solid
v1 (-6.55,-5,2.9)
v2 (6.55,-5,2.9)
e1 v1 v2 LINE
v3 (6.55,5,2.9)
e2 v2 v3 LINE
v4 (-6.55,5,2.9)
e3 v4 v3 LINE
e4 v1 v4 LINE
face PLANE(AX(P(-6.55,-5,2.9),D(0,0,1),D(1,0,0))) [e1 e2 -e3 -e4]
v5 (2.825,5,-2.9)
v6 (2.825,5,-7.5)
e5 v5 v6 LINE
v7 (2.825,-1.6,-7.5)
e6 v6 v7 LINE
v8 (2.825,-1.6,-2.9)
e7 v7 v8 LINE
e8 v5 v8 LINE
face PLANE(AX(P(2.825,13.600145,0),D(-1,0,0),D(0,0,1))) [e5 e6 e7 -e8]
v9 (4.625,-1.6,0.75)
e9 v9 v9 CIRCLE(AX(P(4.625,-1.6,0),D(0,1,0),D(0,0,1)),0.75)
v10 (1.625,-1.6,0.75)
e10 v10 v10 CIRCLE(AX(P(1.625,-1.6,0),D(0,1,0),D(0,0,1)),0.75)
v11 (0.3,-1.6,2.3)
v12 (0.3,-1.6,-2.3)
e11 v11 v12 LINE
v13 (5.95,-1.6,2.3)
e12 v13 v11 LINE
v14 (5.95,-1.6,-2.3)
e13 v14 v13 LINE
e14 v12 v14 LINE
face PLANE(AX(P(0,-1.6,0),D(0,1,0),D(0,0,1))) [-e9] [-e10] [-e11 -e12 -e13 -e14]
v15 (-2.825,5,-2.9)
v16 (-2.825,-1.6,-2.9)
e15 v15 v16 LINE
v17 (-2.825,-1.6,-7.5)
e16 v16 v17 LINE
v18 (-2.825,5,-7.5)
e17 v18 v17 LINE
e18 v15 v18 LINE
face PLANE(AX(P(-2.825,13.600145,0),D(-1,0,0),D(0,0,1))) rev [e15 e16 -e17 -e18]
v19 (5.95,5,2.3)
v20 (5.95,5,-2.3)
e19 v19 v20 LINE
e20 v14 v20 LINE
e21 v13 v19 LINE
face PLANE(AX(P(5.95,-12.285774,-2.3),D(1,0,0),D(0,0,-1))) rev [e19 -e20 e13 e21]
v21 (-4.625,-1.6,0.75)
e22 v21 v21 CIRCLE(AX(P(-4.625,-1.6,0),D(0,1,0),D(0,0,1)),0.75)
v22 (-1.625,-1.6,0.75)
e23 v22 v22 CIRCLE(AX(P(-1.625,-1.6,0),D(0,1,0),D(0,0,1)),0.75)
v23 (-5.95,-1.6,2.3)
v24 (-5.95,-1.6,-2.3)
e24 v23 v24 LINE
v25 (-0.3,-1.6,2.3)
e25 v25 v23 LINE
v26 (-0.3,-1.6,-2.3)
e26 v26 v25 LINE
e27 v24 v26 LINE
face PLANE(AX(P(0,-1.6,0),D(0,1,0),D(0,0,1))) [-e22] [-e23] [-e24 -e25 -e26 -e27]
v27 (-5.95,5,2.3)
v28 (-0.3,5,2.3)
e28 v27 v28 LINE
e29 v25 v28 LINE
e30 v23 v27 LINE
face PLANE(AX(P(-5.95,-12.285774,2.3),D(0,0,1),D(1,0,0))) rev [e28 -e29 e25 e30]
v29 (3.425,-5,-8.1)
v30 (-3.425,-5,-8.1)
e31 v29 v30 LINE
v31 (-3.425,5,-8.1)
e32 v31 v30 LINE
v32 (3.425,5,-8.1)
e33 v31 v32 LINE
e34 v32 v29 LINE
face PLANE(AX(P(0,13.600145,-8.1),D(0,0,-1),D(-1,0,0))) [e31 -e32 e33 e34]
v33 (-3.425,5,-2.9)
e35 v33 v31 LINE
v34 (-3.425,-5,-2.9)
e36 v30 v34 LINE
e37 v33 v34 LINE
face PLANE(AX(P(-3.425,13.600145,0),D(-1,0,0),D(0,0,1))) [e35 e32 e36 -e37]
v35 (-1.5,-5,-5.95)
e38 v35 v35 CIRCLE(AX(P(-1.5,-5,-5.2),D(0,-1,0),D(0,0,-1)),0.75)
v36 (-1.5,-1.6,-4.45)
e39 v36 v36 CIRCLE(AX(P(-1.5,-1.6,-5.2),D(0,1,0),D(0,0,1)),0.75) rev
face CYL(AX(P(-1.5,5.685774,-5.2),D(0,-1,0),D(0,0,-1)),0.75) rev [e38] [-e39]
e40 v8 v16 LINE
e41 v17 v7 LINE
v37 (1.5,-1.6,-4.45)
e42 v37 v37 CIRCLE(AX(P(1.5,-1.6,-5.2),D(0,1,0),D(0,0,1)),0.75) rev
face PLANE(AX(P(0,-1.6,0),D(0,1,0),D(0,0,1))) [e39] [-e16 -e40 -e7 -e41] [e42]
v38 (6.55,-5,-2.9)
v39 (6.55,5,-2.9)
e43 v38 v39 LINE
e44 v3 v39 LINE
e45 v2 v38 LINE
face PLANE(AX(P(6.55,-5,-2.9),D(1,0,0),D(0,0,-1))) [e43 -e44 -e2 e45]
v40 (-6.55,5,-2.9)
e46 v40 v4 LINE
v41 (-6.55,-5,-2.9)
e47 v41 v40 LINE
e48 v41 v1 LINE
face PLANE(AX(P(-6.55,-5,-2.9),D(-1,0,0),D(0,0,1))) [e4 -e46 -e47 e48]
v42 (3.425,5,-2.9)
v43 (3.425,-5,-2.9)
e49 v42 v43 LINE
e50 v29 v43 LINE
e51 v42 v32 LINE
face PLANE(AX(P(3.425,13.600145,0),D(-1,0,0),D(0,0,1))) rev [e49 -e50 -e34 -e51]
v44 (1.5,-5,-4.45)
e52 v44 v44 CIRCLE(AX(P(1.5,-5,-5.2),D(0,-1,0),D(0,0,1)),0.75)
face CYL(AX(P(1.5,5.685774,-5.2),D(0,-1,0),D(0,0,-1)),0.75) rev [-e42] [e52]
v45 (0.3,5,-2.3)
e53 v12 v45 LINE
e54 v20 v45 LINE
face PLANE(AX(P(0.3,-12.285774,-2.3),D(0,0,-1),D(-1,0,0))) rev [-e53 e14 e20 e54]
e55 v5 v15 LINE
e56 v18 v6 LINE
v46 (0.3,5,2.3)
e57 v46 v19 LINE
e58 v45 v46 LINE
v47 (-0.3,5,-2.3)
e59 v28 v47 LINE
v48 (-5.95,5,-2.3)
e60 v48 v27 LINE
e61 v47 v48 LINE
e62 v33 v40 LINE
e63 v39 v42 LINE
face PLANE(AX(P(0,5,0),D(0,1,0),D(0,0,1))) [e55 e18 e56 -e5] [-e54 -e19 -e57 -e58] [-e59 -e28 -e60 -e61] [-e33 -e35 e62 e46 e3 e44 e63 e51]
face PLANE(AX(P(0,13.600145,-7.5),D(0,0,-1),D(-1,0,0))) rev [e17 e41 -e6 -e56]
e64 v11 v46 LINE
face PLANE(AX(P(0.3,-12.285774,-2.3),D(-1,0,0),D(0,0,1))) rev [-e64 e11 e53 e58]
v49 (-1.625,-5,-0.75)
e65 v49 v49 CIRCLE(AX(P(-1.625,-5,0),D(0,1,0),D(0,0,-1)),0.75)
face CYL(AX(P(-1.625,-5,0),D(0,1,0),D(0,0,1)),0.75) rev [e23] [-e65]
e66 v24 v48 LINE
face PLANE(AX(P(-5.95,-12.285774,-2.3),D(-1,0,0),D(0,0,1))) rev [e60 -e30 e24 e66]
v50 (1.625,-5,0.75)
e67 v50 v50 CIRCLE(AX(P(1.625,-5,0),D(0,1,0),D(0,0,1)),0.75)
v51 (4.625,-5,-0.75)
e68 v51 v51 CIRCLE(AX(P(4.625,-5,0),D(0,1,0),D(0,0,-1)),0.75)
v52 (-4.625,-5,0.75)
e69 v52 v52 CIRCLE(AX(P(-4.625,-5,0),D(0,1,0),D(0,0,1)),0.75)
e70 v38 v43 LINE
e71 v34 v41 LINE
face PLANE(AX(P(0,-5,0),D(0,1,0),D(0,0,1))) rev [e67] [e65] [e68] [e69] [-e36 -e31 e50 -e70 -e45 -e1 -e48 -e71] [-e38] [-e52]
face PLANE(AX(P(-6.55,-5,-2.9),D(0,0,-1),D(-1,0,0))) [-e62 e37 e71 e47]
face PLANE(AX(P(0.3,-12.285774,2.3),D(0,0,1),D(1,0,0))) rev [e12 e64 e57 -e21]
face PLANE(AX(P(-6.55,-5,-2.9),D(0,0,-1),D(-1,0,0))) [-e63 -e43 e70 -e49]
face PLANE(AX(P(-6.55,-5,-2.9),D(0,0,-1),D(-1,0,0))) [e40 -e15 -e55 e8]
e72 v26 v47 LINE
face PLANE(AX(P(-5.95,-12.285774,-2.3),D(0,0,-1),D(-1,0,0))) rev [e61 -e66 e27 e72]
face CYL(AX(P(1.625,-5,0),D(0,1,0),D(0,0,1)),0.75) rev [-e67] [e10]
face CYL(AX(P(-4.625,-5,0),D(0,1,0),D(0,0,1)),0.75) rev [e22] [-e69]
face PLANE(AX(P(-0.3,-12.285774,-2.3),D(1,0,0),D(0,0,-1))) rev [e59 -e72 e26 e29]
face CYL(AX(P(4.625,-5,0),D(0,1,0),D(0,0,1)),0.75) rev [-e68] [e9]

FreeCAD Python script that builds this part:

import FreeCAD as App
import Part
import Sketcher

V = App.Vector

doc = App.newDocument("Part")
body = doc.addObject("PartDesign::Body", "Body")

sketch1 = doc.addObject("Sketcher::SketchObject", "Sketch")
body.addObject(sketch1)
sketch1.AttachmentSupport = (doc.XZ_Plane, [""])
sketch1.MapMode = "FlatFace"
sketch1.addGeometry([
    Part.LineSegment(V(-6.55, -2.9, 0), V(-6.55, 2.9, 0)),
    Part.LineSegment(V(-6.55, 2.9, 0), V(6.55, 2.9, 0)),
    Part.LineSegment(V(6.55, 2.9, 0), V(6.55, -2.9, 0)),
    Part.LineSegment(V(6.55, -2.9, 0), V(-6.55, -2.9, 0)),
], False)
sketch1.addConstraint([
    Sketcher.Constraint("Coincident", 0, 2, 1, 1),
    Sketcher.Constraint("Coincident", 1, 2, 2, 1),
    Sketcher.Constraint("Coincident", 2, 2, 3, 1),
    Sketcher.Constraint("Coincident", 3, 2, 0, 1),
    Sketcher.Constraint("Vertical", 0),
    Sketcher.Constraint("Horizontal", 1),
    Sketcher.Constraint("Vertical", 2),
    Sketcher.Constraint("Horizontal", 3),
    Sketcher.Constraint("Symmetric", 0, 2, 2, 2, -1, 1),
    Sketcher.Constraint("DistanceX", 1, 1, 1, 2, 13.1),
    Sketcher.Constraint("DistanceY", 0, 1, 0, 2, 5.8),
])
pad1 = doc.addObject("PartDesign::Pad", "Pad")
body.addObject(pad1)
pad1.Profile = sketch1
pad1.Length = 10
pad1.Midplane = True

sketch2 = doc.addObject("Sketcher::SketchObject", "Sketch001")
body.addObject(sketch2)
sketch2.AttachmentSupport = (doc.XZ_Plane, [""])
sketch2.MapMode = "FlatFace"
sketch2.AttachmentOffset = App.Placement(V(0, 0, -5), App.Rotation())
sketch2.addGeometry([
    Part.LineSegment(V(-5.95, -2.3, 0), V(-5.95, 2.3, 0)),
    Part.LineSegment(V(-5.95, 2.3, 0), V(-0.3, 2.3, 0)),
    Part.LineSegment(V(-0.3, 2.3, 0), V(-0.3, -2.3, 0)),
    Part.LineSegment(V(-0.3, -2.3, 0), V(-5.95, -2.3, 0)),
    Part.LineSegment(V(0.3, -2.3, 0), V(0.3, 2.3, 0)),
    Part.LineSegment(V(0.3, 2.3, 0), V(5.95, 2.3, 0)),
    Part.LineSegment(V(5.95, 2.3, 0), V(5.95, -2.3, 0)),
    Part.LineSegment(V(5.95, -2.3, 0), V(0.3, -2.3, 0)),
], False)
sketch2.addConstraint([
    Sketcher.Constraint("Coincident", 0, 2, 1, 1),
    Sketcher.Constraint("Coincident", 1, 2, 2, 1),
    Sketcher.Constraint("Coincident", 2, 2, 3, 1),
    Sketcher.Constraint("Coincident", 3, 2, 0, 1),
    Sketcher.Constraint("Coincident", 4, 2, 5, 1),
    Sketcher.Constraint("Coincident", 5, 2, 6, 1),
    Sketcher.Constraint("Coincident", 6, 2, 7, 1),
    Sketcher.Constraint("Coincident", 7, 2, 4, 1),
    Sketcher.Constraint("Vertical", 0),
    Sketcher.Constraint("Horizontal", 1),
    Sketcher.Constraint("Vertical", 2),
    Sketcher.Constraint("Horizontal", 3),
    Sketcher.Constraint("Vertical", 4),
    Sketcher.Constraint("Horizontal", 5),
    Sketcher.Constraint("Vertical", 6),
    Sketcher.Constraint("Horizontal", 7),
    Sketcher.Constraint("Symmetric", 2, 2, 4, 2, -1, 1),
    Sketcher.Constraint("Symmetric", 0, 2, 6, 2, -1, 1),
    Sketcher.Constraint("Horizontal", 1, 2, 4, 2),
    Sketcher.Constraint("DistanceY", 0, 1, 0, 2, 4.6),
    Sketcher.Constraint("DistanceX", 1, 1, 1, 2, 5.65),
    Sketcher.Constraint("DistanceX", 1, 2, -1, 1, 0.3),
])
pocket1 = doc.addObject("PartDesign::Pocket", "Pocket")
body.addObject(pocket1)
pocket1.Profile = sketch2
pocket1.Length = 6.6
pocket1.Reversed = True

sketch3 = doc.addObject("Sketcher::SketchObject", "Sketch002")
body.addObject(sketch3)
sketch3.AttachmentSupport = (doc.XZ_Plane, [""])
sketch3.MapMode = "FlatFace"
sketch3.addGeometry([
    Part.Circle(V(-4.625, 0, 0), V(0, 0, 1), 0.75),
    Part.Circle(V(-1.625, 0, 0), V(0, 0, 1), 0.75),
    Part.Circle(V(1.625, 0, 0), V(0, 0, 1), 0.75),
    Part.Circle(V(4.625, 0, 0), V(0, 0, 1), 0.75),
], False)
sketch3.addConstraint([
    Sketcher.Constraint("Equal", 0, 1),
    Sketcher.Constraint("Equal", 1, 2),
    Sketcher.Constraint("Equal", 2, 3),
    Sketcher.Constraint("Symmetric", 1, 3, 2, 3, -1, 1),
    Sketcher.Constraint("Symmetric", 0, 3, 3, 3, -1, 1),
    Sketcher.Constraint("PointOnObject", 0, 3, -1),
    Sketcher.Constraint("PointOnObject", 1, 3, -1),
    Sketcher.Constraint("Diameter", 0, 1.5),
    Sketcher.Constraint("DistanceX", 0, 3, 1, 3, 3.0),
    Sketcher.Constraint("DistanceX", 1, 3, 2, 3, 3.25),
])
pocket2 = doc.addObject("PartDesign::Pocket", "Pocket001")
body.addObject(pocket2)
pocket2.Profile = sketch3
pocket2.Type = "ThroughAll"
pocket2.Midplane = True

sketch4 = doc.addObject("Sketcher::SketchObject", "Sketch003")
body.addObject(sketch4)
sketch4.AttachmentSupport = (doc.XZ_Plane, [""])
sketch4.MapMode = "FlatFace"
sketch4.AttachmentOffset = App.Placement(V(0, 0, 5), App.Rotation())
sketch4.addGeometry([
    Part.LineSegment(V(-3.425, -8.1, 0), V(-3.425, -2.9, 0)),
    Part.LineSegment(V(-3.425, -2.9, 0), V(-2.825, -2.9, 0)),
    Part.LineSegment(V(-2.825, -2.9, 0), V(-2.825, -7.5, 0)),
    Part.LineSegment(V(-2.825, -7.5, 0), V(2.825, -7.5, 0)),
    Part.LineSegment(V(2.825, -7.5, 0), V(2.825, -2.9, 0)),
    Part.LineSegment(V(2.825, -2.9, 0), V(3.425, -2.9, 0)),
    Part.LineSegment(V(3.425, -2.9, 0), V(3.425, -8.1, 0)),
    Part.LineSegment(V(3.425, -8.1, 0), V(-3.425, -8.1, 0)),
], False)
sketch4.addConstraint([
    Sketcher.Constraint("Coincident", 0, 2, 1, 1),
    Sketcher.Constraint("Coincident", 1, 2, 2, 1),
    Sketcher.Constraint("Coincident", 2, 2, 3, 1),
    Sketcher.Constraint("Coincident", 3, 2, 4, 1),
    Sketcher.Constraint("Coincident", 4, 2, 5, 1),
    Sketcher.Constraint("Coincident", 5, 2, 6, 1),
    Sketcher.Constraint("Coincident", 6, 2, 7, 1),
    Sketcher.Constraint("Coincident", 7, 2, 0, 1),
    Sketcher.Constraint("Vertical", 0),
    Sketcher.Constraint("Horizontal", 1),
    Sketcher.Constraint("Vertical", 2),
    Sketcher.Constraint("Horizontal", 3),
    Sketcher.Constraint("Vertical", 4),
    Sketcher.Constraint("Horizontal", 5),
    Sketcher.Constraint("Vertical", 6),
    Sketcher.Constraint("Horizontal", 7),
    Sketcher.Constraint("Symmetric", 1, 2, 4, 2, -2),
    Sketcher.Constraint("Equal", 1, 5),
    Sketcher.Constraint("DistanceX", 1, 1, 1, 2, 0.6),
    Sketcher.Constraint("DistanceY", 0, 1, 0, 2, 5.2),
    Sketcher.Constraint("DistanceY", 2, 2, 2, 1, 4.6),
    Sketcher.Constraint("DistanceX", 3, 1, 3, 2, 5.65),
    Sketcher.Constraint("DistanceY", 0, 2, -1, 1, 2.9),
])
pad2 = doc.addObject("PartDesign::Pad", "Pad001")
body.addObject(pad2)
pad2.Profile = sketch4
pad2.Length = 10
pad2.Reversed = True

sketch5 = doc.addObject("Sketcher::SketchObject", "Sketch004")
body.addObject(sketch5)
sketch5.AttachmentSupport = (doc.XZ_Plane, [""])
sketch5.MapMode = "FlatFace"
sketch5.AttachmentOffset = App.Placement(V(0, 0, 5), App.Rotation())
sketch5.addGeometry([
    Part.LineSegment(V(-2.825, -2.9, 0), V(-2.825, -7.5, 0)),
    Part.LineSegment(V(-2.825, -7.5, 0), V(2.825, -7.5, 0)),
    Part.LineSegment(V(2.825, -7.5, 0), V(2.825, -2.9, 0)),
    Part.LineSegment(V(2.825, -2.9, 0), V(-2.825, -2.9, 0)),
    Part.Circle(V(-1.5, -5.2, 0), V(0, 0, 1), 0.75),
    Part.Circle(V(1.5, -5.2, 0), V(0, 0, 1), 0.75),
], False)
sketch5.addConstraint([
    Sketcher.Constraint("Coincident", 0, 2, 1, 1),
    Sketcher.Constraint("Coincident", 1, 2, 2, 1),
    Sketcher.Constraint("Coincident", 2, 2, 3, 1),
    Sketcher.Constraint("Coincident", 3, 2, 0, 1),
    Sketcher.Constraint("Vertical", 0),
    Sketcher.Constraint("Horizontal", 1),
    Sketcher.Constraint("Vertical", 2),
    Sketcher.Constraint("Horizontal", 3),
    Sketcher.Constraint("Equal", 4, 5),
    Sketcher.Constraint("Symmetric", 4, 3, 5, 3, -2),
    Sketcher.Constraint("Diameter", 4, 1.5),
    Sketcher.Constraint("DistanceY", 0, 2, 0, 1, 4.6),
    Sketcher.Constraint("DistanceX", 4, 3, 5, 3, 3.0),
    Sketcher.Constraint("DistanceX", 1, 1, 1, 2, 5.65),
    Sketcher.Constraint("DistanceY", 4, 3, -1, 1, 5.2),
    Sketcher.Constraint("DistanceY", 0, 2, -1, 1, 7.5),
    Sketcher.Constraint("DistanceX", 0, 2, -1, 1, 2.825),
])
pad3 = doc.addObject("PartDesign::Pad", "Pad002")
body.addObject(pad3)
pad3.Profile = sketch5
pad3.Length = 3.4
pad3.Reversed = True

doc.recompute()
